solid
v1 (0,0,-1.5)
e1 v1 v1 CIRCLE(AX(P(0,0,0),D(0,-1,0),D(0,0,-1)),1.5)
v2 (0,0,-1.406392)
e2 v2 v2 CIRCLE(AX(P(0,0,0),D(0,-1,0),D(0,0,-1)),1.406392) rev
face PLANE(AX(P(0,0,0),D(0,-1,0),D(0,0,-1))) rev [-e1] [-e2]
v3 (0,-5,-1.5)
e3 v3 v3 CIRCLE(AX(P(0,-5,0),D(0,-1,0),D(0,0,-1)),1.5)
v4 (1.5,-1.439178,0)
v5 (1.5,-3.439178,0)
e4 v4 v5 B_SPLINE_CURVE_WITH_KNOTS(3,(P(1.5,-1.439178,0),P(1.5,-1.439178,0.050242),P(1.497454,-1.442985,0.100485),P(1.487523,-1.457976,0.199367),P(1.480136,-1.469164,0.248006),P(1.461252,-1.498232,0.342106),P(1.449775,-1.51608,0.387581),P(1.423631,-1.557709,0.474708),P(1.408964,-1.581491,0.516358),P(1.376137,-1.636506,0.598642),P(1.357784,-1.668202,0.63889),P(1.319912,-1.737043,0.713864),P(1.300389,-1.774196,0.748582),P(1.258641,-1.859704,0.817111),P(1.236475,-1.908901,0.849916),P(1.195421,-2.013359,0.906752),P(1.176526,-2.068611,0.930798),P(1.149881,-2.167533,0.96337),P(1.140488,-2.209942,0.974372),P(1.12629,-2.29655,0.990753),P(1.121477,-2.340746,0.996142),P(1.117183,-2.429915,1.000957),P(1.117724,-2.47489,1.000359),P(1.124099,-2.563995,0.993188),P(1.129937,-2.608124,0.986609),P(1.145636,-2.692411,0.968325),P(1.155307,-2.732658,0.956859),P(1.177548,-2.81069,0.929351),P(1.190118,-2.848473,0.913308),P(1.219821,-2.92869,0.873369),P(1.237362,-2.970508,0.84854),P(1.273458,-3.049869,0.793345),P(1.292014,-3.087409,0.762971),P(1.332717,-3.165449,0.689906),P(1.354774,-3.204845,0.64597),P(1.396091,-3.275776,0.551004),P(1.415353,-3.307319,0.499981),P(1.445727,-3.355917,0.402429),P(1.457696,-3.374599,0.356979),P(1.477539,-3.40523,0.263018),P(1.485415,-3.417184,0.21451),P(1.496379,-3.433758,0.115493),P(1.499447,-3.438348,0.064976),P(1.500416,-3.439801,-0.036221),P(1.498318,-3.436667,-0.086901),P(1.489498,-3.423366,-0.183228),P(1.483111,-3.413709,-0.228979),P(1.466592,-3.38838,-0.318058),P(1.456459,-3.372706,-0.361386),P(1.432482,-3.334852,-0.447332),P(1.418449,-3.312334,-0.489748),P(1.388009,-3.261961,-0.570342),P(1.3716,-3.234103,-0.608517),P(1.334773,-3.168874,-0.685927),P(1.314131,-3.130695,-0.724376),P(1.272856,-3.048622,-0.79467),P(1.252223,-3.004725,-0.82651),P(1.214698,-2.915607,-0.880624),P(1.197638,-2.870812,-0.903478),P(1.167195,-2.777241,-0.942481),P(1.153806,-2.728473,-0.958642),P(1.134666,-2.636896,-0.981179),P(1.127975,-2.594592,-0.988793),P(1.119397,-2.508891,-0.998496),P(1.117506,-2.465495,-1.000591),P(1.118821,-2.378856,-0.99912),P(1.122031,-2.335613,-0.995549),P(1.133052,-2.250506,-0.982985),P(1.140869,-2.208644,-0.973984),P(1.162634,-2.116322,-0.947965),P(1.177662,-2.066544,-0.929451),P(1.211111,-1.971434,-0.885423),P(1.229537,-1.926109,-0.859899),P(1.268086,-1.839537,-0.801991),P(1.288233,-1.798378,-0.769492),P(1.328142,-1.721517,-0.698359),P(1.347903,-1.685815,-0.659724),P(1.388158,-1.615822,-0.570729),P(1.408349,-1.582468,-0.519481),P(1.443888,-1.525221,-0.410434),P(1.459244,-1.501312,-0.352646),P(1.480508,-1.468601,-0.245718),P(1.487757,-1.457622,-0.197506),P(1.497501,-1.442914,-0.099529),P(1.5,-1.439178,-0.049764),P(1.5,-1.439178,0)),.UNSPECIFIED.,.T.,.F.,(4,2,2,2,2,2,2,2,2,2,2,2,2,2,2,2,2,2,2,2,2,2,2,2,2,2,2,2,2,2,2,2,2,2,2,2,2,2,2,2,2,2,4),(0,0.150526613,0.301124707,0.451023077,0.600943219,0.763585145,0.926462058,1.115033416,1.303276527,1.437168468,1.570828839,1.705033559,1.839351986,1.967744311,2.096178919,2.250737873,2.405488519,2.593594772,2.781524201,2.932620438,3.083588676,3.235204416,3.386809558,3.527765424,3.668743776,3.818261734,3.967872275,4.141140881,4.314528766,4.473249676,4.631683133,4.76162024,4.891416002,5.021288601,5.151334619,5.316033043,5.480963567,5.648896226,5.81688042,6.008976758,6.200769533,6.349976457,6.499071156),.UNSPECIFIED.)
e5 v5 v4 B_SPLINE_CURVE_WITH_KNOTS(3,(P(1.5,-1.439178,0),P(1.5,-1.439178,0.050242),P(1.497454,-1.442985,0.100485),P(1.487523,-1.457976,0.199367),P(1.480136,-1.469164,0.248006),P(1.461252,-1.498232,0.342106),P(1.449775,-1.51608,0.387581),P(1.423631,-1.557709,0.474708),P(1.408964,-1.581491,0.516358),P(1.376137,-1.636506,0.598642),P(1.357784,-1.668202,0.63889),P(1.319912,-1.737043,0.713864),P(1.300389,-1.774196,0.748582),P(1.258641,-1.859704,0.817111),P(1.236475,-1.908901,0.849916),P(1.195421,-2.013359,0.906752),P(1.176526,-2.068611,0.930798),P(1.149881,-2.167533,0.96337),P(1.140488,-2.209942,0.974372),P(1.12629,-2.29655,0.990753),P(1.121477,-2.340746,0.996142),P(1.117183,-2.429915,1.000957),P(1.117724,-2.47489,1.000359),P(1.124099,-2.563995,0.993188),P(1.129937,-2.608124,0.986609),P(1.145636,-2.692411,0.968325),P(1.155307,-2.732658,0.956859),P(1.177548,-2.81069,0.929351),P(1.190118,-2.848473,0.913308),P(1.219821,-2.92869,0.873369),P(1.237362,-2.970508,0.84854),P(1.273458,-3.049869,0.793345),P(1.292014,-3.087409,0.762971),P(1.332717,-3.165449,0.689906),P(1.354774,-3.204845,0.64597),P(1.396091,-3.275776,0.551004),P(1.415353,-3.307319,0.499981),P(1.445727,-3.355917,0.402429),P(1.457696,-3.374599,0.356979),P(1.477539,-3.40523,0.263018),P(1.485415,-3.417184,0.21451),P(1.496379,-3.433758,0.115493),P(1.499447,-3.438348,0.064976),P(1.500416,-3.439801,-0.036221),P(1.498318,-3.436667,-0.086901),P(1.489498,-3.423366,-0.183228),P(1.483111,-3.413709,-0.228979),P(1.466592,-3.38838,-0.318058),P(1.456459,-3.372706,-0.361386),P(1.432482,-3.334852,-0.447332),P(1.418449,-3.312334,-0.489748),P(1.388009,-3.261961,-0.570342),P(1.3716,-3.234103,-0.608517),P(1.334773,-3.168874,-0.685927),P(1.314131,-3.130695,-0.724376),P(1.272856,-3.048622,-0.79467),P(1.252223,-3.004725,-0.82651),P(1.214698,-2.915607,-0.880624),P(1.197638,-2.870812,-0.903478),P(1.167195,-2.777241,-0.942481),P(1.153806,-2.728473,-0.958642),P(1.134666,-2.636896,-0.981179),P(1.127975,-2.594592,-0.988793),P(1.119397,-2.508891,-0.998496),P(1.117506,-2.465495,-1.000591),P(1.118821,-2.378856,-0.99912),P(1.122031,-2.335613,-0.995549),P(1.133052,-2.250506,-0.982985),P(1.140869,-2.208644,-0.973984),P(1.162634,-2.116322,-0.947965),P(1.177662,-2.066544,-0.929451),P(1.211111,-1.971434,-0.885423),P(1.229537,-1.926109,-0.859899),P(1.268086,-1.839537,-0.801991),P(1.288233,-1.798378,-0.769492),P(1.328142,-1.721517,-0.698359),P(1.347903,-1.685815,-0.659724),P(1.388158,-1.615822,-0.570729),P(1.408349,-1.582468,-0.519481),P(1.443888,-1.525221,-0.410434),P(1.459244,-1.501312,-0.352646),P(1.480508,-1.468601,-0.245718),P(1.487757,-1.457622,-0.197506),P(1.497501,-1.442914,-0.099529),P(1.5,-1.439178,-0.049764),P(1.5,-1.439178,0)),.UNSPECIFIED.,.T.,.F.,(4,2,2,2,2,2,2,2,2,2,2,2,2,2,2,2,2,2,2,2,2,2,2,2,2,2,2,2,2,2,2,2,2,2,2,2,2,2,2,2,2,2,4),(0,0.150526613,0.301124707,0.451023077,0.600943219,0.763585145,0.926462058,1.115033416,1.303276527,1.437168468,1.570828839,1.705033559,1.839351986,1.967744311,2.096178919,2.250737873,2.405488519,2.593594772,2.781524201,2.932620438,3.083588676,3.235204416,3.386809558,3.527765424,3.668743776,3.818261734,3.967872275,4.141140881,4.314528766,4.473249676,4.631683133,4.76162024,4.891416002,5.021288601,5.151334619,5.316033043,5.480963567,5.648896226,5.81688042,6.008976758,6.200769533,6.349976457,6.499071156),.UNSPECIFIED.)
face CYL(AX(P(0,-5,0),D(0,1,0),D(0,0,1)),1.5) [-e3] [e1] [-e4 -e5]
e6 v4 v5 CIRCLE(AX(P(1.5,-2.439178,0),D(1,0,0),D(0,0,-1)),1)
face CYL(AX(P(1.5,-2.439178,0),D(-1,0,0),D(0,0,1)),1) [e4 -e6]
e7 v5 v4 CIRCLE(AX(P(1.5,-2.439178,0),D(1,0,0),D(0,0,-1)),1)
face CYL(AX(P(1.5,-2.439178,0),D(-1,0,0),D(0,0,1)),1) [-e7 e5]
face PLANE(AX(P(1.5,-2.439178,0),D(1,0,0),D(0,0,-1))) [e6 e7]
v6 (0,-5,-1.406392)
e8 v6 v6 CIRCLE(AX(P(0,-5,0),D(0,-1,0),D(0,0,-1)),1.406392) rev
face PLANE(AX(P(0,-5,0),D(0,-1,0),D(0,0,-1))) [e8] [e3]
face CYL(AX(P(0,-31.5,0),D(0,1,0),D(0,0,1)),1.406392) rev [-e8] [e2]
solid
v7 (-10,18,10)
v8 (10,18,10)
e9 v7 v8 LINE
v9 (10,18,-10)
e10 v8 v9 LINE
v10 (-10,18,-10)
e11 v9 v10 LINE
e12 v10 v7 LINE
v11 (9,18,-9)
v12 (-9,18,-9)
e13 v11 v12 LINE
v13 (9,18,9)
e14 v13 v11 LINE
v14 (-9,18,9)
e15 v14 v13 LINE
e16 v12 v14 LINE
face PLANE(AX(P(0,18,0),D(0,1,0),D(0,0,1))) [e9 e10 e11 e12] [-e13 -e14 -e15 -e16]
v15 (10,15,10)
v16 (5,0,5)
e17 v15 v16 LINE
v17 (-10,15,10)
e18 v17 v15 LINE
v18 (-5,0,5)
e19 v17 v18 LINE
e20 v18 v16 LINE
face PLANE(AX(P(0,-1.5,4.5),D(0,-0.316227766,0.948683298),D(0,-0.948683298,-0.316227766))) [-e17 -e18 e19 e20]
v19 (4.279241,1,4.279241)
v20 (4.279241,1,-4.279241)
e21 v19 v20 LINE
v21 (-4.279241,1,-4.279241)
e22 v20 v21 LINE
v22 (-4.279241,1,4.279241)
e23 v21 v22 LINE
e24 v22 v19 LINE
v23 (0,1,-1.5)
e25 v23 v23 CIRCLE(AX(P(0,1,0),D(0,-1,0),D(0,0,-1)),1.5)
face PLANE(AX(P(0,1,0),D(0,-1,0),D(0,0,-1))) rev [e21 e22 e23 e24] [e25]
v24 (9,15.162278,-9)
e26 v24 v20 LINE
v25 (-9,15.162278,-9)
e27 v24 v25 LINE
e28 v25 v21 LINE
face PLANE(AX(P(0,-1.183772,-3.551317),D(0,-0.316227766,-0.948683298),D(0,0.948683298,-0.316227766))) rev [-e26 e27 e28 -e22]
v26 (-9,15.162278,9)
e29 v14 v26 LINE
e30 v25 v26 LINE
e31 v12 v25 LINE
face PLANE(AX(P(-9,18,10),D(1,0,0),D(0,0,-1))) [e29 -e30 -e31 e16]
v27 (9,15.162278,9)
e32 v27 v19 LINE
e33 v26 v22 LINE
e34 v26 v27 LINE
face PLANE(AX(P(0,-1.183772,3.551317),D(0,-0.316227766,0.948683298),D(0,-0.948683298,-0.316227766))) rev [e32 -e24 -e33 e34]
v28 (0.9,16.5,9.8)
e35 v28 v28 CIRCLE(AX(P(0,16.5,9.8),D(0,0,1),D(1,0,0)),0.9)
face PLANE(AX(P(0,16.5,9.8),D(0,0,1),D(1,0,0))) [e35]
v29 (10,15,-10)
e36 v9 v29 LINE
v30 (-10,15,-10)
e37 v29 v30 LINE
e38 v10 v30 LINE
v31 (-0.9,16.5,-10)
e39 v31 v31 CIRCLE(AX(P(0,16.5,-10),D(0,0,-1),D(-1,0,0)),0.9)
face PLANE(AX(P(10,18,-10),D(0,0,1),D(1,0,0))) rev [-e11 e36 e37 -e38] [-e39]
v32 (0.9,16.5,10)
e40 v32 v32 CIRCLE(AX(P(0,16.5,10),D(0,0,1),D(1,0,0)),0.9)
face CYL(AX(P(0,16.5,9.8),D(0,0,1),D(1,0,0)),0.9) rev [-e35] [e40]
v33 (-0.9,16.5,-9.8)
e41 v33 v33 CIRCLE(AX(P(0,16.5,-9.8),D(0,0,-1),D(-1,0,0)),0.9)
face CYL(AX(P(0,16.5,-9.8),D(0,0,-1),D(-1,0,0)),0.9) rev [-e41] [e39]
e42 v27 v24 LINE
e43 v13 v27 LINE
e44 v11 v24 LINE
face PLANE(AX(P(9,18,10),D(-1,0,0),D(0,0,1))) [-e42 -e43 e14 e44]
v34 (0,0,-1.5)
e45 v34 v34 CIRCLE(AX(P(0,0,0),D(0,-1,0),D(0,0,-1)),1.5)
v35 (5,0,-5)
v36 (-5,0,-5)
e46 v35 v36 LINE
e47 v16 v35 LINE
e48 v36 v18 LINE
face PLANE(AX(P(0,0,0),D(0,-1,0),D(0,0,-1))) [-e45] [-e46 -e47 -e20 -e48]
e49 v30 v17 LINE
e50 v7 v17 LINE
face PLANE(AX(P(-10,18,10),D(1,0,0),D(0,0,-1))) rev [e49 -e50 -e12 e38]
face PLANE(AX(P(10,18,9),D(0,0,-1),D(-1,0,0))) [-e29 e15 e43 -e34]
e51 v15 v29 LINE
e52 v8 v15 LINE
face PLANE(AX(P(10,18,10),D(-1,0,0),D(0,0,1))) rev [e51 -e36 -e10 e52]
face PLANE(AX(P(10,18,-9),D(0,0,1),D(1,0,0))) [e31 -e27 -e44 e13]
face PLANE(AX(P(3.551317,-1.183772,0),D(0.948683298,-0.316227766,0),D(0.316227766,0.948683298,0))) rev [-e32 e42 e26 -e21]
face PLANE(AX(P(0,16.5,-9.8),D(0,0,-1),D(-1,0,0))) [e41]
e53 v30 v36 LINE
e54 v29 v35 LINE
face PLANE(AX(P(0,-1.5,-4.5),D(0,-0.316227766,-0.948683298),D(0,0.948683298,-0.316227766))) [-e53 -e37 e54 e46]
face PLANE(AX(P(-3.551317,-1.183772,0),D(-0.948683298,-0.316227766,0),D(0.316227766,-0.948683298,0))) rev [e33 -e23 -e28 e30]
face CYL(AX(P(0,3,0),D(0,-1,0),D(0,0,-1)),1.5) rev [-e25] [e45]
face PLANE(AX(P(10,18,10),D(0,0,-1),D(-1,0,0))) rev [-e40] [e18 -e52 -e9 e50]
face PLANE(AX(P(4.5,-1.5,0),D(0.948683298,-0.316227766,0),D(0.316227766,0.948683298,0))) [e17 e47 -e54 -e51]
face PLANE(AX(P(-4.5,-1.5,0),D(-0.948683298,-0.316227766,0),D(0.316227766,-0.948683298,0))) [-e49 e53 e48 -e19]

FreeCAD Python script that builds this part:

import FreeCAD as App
import Part
import Sketcher


def faces_at(feature, points):
    """Names of the faces that lie closest to the given points."""
    faces = feature.Shape.Faces
    near = lambda p: min(range(len(faces)), key=lambda i: faces[i].distToShape(Part.Vertex(*p))[0])
    return sorted({f"Face{near(p) + 1}" for p in points})


def add_polygon(sketch, points):
    """Adds a closed chain of lines whose ends are joined by coincident constraints."""
    first, n = sketch.GeometryCount, len(points)
    for a, b in zip(points, points[1:] + points[:1]):
        sketch.addGeometry(Part.LineSegment(App.Vector(*a, 0), App.Vector(*b, 0)), False)
    for i in range(n):
        sketch.addConstraint(Sketcher.Constraint("Coincident", first + i, 2, first + (i + 1) % n, 1))

doc = App.newDocument("Part")
params = doc.addObject("Spreadsheet::Sheet", "Params")
for row, (alias, value) in enumerate([
    ("sketch1_width", "20 mm"),
    ("sketch2_width", "10 mm"),
    ("sketch3_width", "20 mm"),
    ("pad1_length", "3 mm"),
    ("thickness_wall", "1 mm"),
    ("sketch4_diameter", "3 mm"),
    ("pocket1_length", "3 mm"),
    ("sketch5_diameter", "1.8 mm"),
    ("pocket2_length", "0.2 mm"),
    ("sketch6_diameter", "1.8 mm"),
    ("pocket3_length", "0.2 mm"),
    ("sketch7_diameter", "3 mm"),
    ("pad2_length", "5 mm"),
    ("pocket4_length", "15 mm"),
    ("sketch9_diameter", "2 mm"),
    ("pad3_length", "1.5 mm"),
], start=1):
    params.set(f"A{row}", alias)
    params.set(f"B{row}", "=" + value)
    params.setAlias(f"B{row}", alias)

body = doc.addObject("PartDesign::Body", "Body")

# Sketch on XZ plane
sketch1 = doc.addObject("Sketcher::SketchObject", "Sketch")
body.addObject(sketch1)
sketch1.AttachmentSupport = (doc.XZ_Plane, [""])
sketch1.MapMode = "FlatFace"
sketch1.AttachmentOffset = App.Placement(App.Vector(0, 0, -15), App.Rotation())
add_polygon(sketch1, [(-10, 10), (10, 10), (10, -10), (-10, -10)])  # lines 0-3
sketch1.addConstraint(Sketcher.Constraint("Horizontal", 0))
sketch1.addConstraint(Sketcher.Constraint("Vertical", 1))
sketch1.addConstraint(Sketcher.Constraint("Horizontal", 2))
sketch1.addConstraint(Sketcher.Constraint("Vertical", 3))
sketch1.addConstraint(Sketcher.Constraint("Symmetric", 0, 2, 2, 2, -1, 1))
sketch1.addConstraint(Sketcher.Constraint("Equal", 2, 1))
sketch1.addConstraint(Sketcher.Constraint("DistanceX", 0, 1, 0, 2, 20.0))
sketch1.setExpression("Constraints[10]", "Params.sketch1_width")

# Sketch on XZ plane
sketch2 = doc.addObject("Sketcher::SketchObject", "Sketch001")
body.addObject(sketch2)
sketch2.AttachmentSupport = (doc.XZ_Plane, [""])
sketch2.MapMode = "FlatFace"
add_polygon(sketch2, [(-5, 5), (5, 5), (5, -5), (-5, -5)])  # lines 0-3
sketch2.addConstraint(Sketcher.Constraint("Horizontal", 0))
sketch2.addConstraint(Sketcher.Constraint("Vertical", 1))
sketch2.addConstraint(Sketcher.Constraint("Horizontal", 2))
sketch2.addConstraint(Sketcher.Constraint("Vertical", 3))
sketch2.addConstraint(Sketcher.Constraint("Symmetric", 0, 2, 2, 2, -1, 1))
sketch2.addConstraint(Sketcher.Constraint("Equal", 2, 1))
sketch2.addConstraint(Sketcher.Constraint("DistanceX", 0, 1, 0, 2, 10.0))
sketch2.setExpression("Constraints[10]", "Params.sketch2_width")

additiveloft = doc.addObject("PartDesign::AdditiveLoft", "AdditiveLoft")
body.addObject(additiveloft)
additiveloft.Profile = sketch1
additiveloft.Sections = [sketch2]

# Sketch on XZ plane
sketch3 = doc.addObject("Sketcher::SketchObject", "Sketch002")
body.addObject(sketch3)
sketch3.AttachmentSupport = (doc.XZ_Plane, [""])
sketch3.MapMode = "FlatFace"
sketch3.AttachmentOffset = App.Placement(App.Vector(0, 0, -15), App.Rotation())
add_polygon(sketch3, [(-10, -10), (-10, 10), (10, 10), (10, -10)])  # lines 0-3
sketch3.addConstraint(Sketcher.Constraint("Vertical", 0))
sketch3.addConstraint(Sketcher.Constraint("Horizontal", 1))
sketch3.addConstraint(Sketcher.Constraint("Vertical", 2))
sketch3.addConstraint(Sketcher.Constraint("Horizontal", 3))
sketch3.addConstraint(Sketcher.Constraint("Symmetric", 0, 2, 2, 2, -1, 1))
sketch3.addConstraint(Sketcher.Constraint("Equal", 3, 0))
sketch3.addConstraint(Sketcher.Constraint("DistanceX", 1, 1, 1, 2, 20.0))
sketch3.setExpression("Constraints[10]", "Params.sketch3_width")
pad1 = doc.addObject("PartDesign::Pad", "Pad")
body.addObject(pad1)
pad1.Profile = sketch3
pad1.setExpression("Length", "Params.pad1_length")
pad1.Reversed = True
doc.recompute()

thickness = doc.addObject("PartDesign::Thickness", "Thickness")
body.addObject(thickness)
thickness.Base = (pad1, faces_at(pad1, [(0, 18, 0)]))
thickness.setExpression("Value", "Params.thickness_wall")
thickness.Reversed = True
thickness.Join = "Intersection"

# Sketch on XZ plane
sketch4 = doc.addObject("Sketcher::SketchObject", "Sketch003")
body.addObject(sketch4)
sketch4.AttachmentSupport = (doc.XZ_Plane, [""])
sketch4.MapMode = "FlatFace"
sketch4.addGeometry(Part.Circle(App.Vector(0, 0, 0), App.Vector(0, 0, 1), 1.5), False)
sketch4.addConstraint(Sketcher.Constraint("Coincident", 0, 3, -1, 1))
sketch4.addConstraint(Sketcher.Constraint("Diameter", 0, 3.0))
sketch4.setExpression("Constraints[1]", "Params.sketch4_diameter")
pocket1 = doc.addObject("PartDesign::Pocket", "Pocket")
body.addObject(pocket1)
pocket1.Profile = sketch4
pocket1.setExpression("Length", "Params.pocket1_length")

# Sketch on XY plane
sketch5 = doc.addObject("Sketcher::SketchObject", "Sketch004")
body.addObject(sketch5)
sketch5.AttachmentSupport = (doc.XY_Plane, [""])
sketch5.MapMode = "FlatFace"
sketch5.AttachmentOffset = App.Placement(App.Vector(0, 0, -10), App.Rotation())
sketch5.addGeometry(Part.Circle(App.Vector(0, 16.5, 0), App.Vector(0, 0, 1), 0.9), False)
sketch5.addConstraint(Sketcher.Constraint("PointOnObject", 0, 3, -2))
sketch5.addConstraint(Sketcher.Constraint("Diameter", 0, 1.8))
sketch5.addConstraint(Sketcher.Constraint("DistanceY", -1, 1, 0, 3, 16.5))
sketch5.setExpression("Constraints[1]", "Params.sketch5_diameter")
pocket2 = doc.addObject("PartDesign::Pocket", "Pocket001")
body.addObject(pocket2)
pocket2.Profile = sketch5
pocket2.setExpression("Length", "Params.pocket2_length")
pocket2.Reversed = True

# Sketch on XY plane
sketch6 = doc.addObject("Sketcher::SketchObject", "Sketch005")
body.addObject(sketch6)
sketch6.AttachmentSupport = (doc.XY_Plane, [""])
sketch6.MapMode = "FlatFace"
sketch6.AttachmentOffset = App.Placement(App.Vector(0, 0, 9.8), App.Rotation())
sketch6.addGeometry(Part.Circle(App.Vector(0, 16.5, 0), App.Vector(0, 0, 1), 0.9), False)
sketch6.addConstraint(Sketcher.Constraint("PointOnObject", 0, 3, -2))
sketch6.addConstraint(Sketcher.Constraint("Diameter", 0, 1.8))
sketch6.addConstraint(Sketcher.Constraint("DistanceY", -1, 1, 0, 3, 16.5))
sketch6.setExpression("Constraints[1]", "Params.sketch6_diameter")
pocket3 = doc.addObject("PartDesign::Pocket", "Pocket002")
body.addObject(pocket3)
pocket3.Profile = sketch6
pocket3.setExpression("Length", "Params.pocket3_length")
pocket3.Reversed = True
body2 = doc.addObject("PartDesign::Body", "Body001")

# Sketch on XZ plane
sketch7 = doc.addObject("Sketcher::SketchObject", "Sketch006")
body2.addObject(sketch7)
sketch7.AttachmentSupport = (doc.getObject("XZ_Plane001"), [""])
sketch7.MapMode = "FlatFace"
sketch7.addGeometry(Part.Circle(App.Vector(0, 0, 0), App.Vector(0, 0, 1), 1.5), False)
sketch7.addConstraint(Sketcher.Constraint("Coincident", 0, 3, -1, 1))
sketch7.addConstraint(Sketcher.Constraint("Diameter", 0, 3.0))
sketch7.setExpression("Constraints[1]", "Params.sketch7_diameter")
pad2 = doc.addObject("PartDesign::Pad", "Pad001")
body2.addObject(pad2)
pad2.Profile = sketch7
pad2.setExpression("Length", "Params.pad2_length")

# Sketch on XZ plane
sketch8 = doc.addObject("Sketcher::SketchObject", "Sketch007")
body2.addObject(sketch8)
sketch8.AttachmentSupport = (doc.getObject("XZ_Plane001"), [""])
sketch8.MapMode = "FlatFace"
sketch8.AttachmentOffset = App.Placement(App.Vector(0, 0, 5), App.Rotation())
sketch8.addGeometry(Part.Circle(App.Vector(0, 0, 0), App.Vector(0, 0, 1), 1.355899), False)
sketch8.addConstraint(Sketcher.Constraint("Coincident", 0, 3, -1, 1))
sketch8.addConstraint(Sketcher.Constraint("Diameter", 0, 2.711797))
pocket4 = doc.addObject("PartDesign::Pocket", "Pocket003")
body2.addObject(pocket4)
pocket4.Profile = sketch8
pocket4.setExpression("Length", "Params.pocket4_length")

# Sketch on YZ plane
sketch9 = doc.addObject("Sketcher::SketchObject", "Sketch008")
body2.addObject(sketch9)
sketch9.AttachmentSupport = (doc.getObject("YZ_Plane001"), [""])
sketch9.MapMode = "FlatFace"
sketch9.addGeometry(Part.Circle(App.Vector(-2.439178, 0, 0), App.Vector(0, 0, 1), 1), False)
sketch9.addConstraint(Sketcher.Constraint("PointOnObject", 0, 3, -1))
sketch9.addConstraint(Sketcher.Constraint("Diameter", 0, 2.0))
sketch9.addConstraint(Sketcher.Constraint("DistanceX", 0, 3, -1, 1, 2.439178))
sketch9.setExpression("Constraints[1]", "Params.sketch9_diameter")
pad3 = doc.addObject("PartDesign::Pad", "Pad002")
body2.addObject(pad3)
pad3.Profile = sketch9
pad3.setExpression("Length", "Params.pad3_length")

# Sketch on XZ plane
sketch10 = doc.addObject("Sketcher::SketchObject", "Sketch009")
body2.addObject(sketch10)
sketch10.AttachmentSupport = (doc.getObject("XZ_Plane001"), [""])
sketch10.MapMode = "FlatFace"
sketch10.addGeometry(Part.Circle(App.Vector(0, 0, 0), App.Vector(0, 0, 1), 1.406392), False)
sketch10.addConstraint(Sketcher.Constraint("Coincident", 0, 3, -1, 1))
sketch10.addConstraint(Sketcher.Constraint("Diameter", 0, 2.812783))
pocket5 = doc.addObject("PartDesign::Pocket", "Pocket004")
body2.addObject(pocket5)
pocket5.Profile = sketch10
pocket5.Type = "ThroughAll"
pocket5.Midplane = True

doc.recompute()
